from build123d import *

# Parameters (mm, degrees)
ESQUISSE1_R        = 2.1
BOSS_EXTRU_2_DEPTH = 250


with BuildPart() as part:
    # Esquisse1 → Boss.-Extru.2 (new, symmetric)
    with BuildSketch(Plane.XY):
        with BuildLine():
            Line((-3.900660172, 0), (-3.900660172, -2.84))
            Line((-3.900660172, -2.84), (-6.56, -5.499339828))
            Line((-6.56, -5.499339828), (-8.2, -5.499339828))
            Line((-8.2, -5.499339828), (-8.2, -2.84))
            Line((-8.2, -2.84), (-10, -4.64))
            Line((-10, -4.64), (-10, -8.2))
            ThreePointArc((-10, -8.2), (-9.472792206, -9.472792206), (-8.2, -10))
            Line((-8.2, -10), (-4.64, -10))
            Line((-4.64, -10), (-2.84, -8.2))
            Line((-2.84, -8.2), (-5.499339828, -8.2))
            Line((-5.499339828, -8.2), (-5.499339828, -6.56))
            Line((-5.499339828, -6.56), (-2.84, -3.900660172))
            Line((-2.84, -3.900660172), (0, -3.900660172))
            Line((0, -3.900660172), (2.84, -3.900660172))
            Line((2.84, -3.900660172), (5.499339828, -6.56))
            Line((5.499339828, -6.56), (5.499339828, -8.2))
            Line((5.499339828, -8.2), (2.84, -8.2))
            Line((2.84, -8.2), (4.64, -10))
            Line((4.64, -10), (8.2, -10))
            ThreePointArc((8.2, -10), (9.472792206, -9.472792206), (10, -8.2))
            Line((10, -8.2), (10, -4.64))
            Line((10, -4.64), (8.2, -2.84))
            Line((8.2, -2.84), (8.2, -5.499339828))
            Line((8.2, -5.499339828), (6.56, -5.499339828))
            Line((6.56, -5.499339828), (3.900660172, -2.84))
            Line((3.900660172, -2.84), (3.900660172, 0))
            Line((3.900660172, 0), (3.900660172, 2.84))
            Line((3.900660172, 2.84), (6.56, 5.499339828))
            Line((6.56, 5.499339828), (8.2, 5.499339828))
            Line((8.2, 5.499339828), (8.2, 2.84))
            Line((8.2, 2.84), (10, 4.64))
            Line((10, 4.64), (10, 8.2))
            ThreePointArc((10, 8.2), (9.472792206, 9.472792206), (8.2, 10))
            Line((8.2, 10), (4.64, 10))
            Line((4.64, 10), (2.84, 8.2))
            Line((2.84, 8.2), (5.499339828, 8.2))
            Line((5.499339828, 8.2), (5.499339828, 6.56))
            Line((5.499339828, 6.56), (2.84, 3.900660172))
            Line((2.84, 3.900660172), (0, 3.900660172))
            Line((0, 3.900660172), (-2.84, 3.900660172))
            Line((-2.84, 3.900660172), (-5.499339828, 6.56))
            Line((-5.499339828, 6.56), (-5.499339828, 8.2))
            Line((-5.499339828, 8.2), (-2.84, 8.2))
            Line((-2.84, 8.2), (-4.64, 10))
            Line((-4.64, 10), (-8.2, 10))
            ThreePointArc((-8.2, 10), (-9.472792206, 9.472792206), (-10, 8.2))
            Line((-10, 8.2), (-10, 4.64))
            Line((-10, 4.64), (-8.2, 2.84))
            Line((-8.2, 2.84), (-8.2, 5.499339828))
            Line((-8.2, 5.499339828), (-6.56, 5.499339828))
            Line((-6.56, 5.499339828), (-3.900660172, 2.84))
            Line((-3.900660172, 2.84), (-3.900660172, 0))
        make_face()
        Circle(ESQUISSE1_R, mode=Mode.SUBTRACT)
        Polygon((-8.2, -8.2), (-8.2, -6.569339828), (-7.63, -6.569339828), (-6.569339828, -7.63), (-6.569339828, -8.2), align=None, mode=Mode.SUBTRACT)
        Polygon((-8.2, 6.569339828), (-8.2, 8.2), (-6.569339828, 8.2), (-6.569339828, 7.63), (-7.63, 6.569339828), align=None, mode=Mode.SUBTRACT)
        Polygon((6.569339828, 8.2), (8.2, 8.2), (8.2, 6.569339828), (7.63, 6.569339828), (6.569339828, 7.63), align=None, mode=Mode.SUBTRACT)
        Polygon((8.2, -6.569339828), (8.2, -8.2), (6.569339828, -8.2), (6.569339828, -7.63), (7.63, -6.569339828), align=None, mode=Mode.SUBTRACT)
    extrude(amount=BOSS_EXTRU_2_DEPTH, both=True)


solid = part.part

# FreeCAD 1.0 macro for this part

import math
import FreeCAD as App
import Part
import Sketcher

V = App.Vector
Q = App.Units.Quantity


def add_polygon(sketch, points):
    """Adds a closed chain of lines whose ends are joined by coincident constraints."""
    first, n = sketch.GeometryCount, len(points)
    for a, b in zip(points, points[1:] + points[:1]):
        sketch.addGeometry(Part.LineSegment(App.Vector(*a, 0), App.Vector(*b, 0)), False)
    for i in range(n):
        sketch.addConstraint(Sketcher.Constraint("Coincident", first + i, 2, first + (i + 1) % n, 1))

doc = App.newDocument("Part")
body = doc.addObject("PartDesign::Body", "Body")

sketch1 = body.newObject("Sketcher::SketchObject", "Sketch")
sketch1.AttachmentSupport = (doc.getObject("XY_Plane"), [""])
sketch1.MapMode = "FlatFace"
sketch1.addGeometry(Part.LineSegment(V(-3.90066, -2.84, 0), V(-6.56, -5.49934, 0)), False)
sketch1.addGeometry(Part.LineSegment(V(-6.56, -5.49934, 0), V(-8.2, -5.49934, 0)), False)
sketch1.addGeometry(Part.LineSegment(V(-8.2, -5.49934, 0), V(-8.2, -2.84, 0)), False)
sketch1.addGeometry(Part.LineSegment(V(-8.2, -2.84, 0), V(-10, -4.64, 0)), False)
sketch1.addGeometry(Part.LineSegment(V(-10, -4.64, 0), V(-10, -8.2, 0)), False)
sketch1.addGeometry(Part.ArcOfCircle(Part.Circle(V(-8.2, -8.2, 0), V(0, 0, 1), 1.8), math.radians(180), math.radians(270)), False)
sketch1.addGeometry(Part.LineSegment(V(-8.2, -10, 0), V(-4.64, -10, 0)), False)
sketch1.addGeometry(Part.LineSegment(V(-4.64, -10, 0), V(-2.84, -8.2, 0)), False)
sketch1.addGeometry(Part.LineSegment(V(-2.84, -8.2, 0), V(-5.49934, -8.2, 0)), False)
sketch1.addGeometry(Part.LineSegment(V(-5.49934, -8.2, 0), V(-5.49934, -6.56, 0)), False)
sketch1.addGeometry(Part.LineSegment(V(-5.49934, -6.56, 0), V(-2.84, -3.90066, 0)), False)
sketch1.addGeometry(Part.LineSegment(V(-2.84, -3.90066, 0), V(2.84, -3.90066, 0)), False)
sketch1.addGeometry(Part.LineSegment(V(2.84, -3.90066, 0), V(5.49934, -6.56, 0)), False)
sketch1.addGeometry(Part.LineSegment(V(5.49934, -6.56, 0), V(5.49934, -8.2, 0)), False)
sketch1.addGeometry(Part.LineSegment(V(5.49934, -8.2, 0), V(2.84, -8.2, 0)), False)
sketch1.addGeometry(Part.LineSegment(V(2.84, -8.2, 0), V(4.64, -10, 0)), False)
sketch1.addGeometry(Part.LineSegment(V(4.64, -10, 0), V(8.2, -10, 0)), False)
sketch1.addGeometry(Part.ArcOfCircle(Part.Circle(V(8.2, -8.2, 0), V(0, 0, 1), 1.8), math.radians(-90), math.radians(0)), False)
sketch1.addGeometry(Part.LineSegment(V(10, -8.2, 0), V(10, -4.64, 0)), False)
sketch1.addGeometry(Part.LineSegment(V(10, -4.64, 0), V(8.2, -2.84, 0)), False)
sketch1.addGeometry(Part.LineSegment(V(8.2, -2.84, 0), V(8.2, -5.49934, 0)), False)
sketch1.addGeometry(Part.LineSegment(V(8.2, -5.49934, 0), V(6.56, -5.49934, 0)), False)
sketch1.addGeometry(Part.LineSegment(V(6.56, -5.49934, 0), V(3.90066, -2.84, 0)), False)
sketch1.addGeometry(Part.LineSegment(V(3.90066, -2.84, 0), V(3.90066, 2.84, 0)), False)
sketch1.addGeometry(Part.LineSegment(V(3.90066, 2.84, 0), V(6.56, 5.49934, 0)), False)
sketch1.addGeometry(Part.LineSegment(V(6.56, 5.49934, 0), V(8.2, 5.49934, 0)), False)
sketch1.addGeometry(Part.LineSegment(V(8.2, 5.49934, 0), V(8.2, 2.84, 0)), False)
sketch1.addGeometry(Part.LineSegment(V(8.2, 2.84, 0), V(10, 4.64, 0)), False)
sketch1.addGeometry(Part.LineSegment(V(10, 4.64, 0), V(10, 8.2, 0)), False)
sketch1.addGeometry(Part.ArcOfCircle(Part.Circle(V(8.2, 8.2, 0), V(0, 0, 1), 1.8), math.radians(0), math.radians(90)), False)
sketch1.addGeometry(Part.LineSegment(V(8.2, 10, 0), V(4.64, 10, 0)), False)
sketch1.addGeometry(Part.LineSegment(V(4.64, 10, 0), V(2.84, 8.2, 0)), False)
sketch1.addGeometry(Part.LineSegment(V(2.84, 8.2, 0), V(5.49934, 8.2, 0)), False)
sketch1.addGeometry(Part.LineSegment(V(5.49934, 8.2, 0), V(5.49934, 6.56, 0)), False)
sketch1.addGeometry(Part.LineSegment(V(5.49934, 6.56, 0), V(2.84, 3.90066, 0)), False)
sketch1.addGeometry(Part.LineSegment(V(2.84, 3.90066, 0), V(-2.84, 3.90066, 0)), False)
sketch1.addGeometry(Part.LineSegment(V(-2.84, 3.90066, 0), V(-5.49934, 6.56, 0)), False)
sketch1.addGeometry(Part.LineSegment(V(-5.49934, 6.56, 0), V(-5.49934, 8.2, 0)), False)
sketch1.addGeometry(Part.LineSegment(V(-5.49934, 8.2, 0), V(-2.84, 8.2, 0)), False)
sketch1.addGeometry(Part.LineSegment(V(-2.84, 8.2, 0), V(-4.64, 10, 0)), False)
sketch1.addGeometry(Part.LineSegment(V(-4.64, 10, 0), V(-8.2, 10, 0)), False)
sketch1.addGeometry(Part.ArcOfCircle(Part.Circle(V(-8.2, 8.2, 0), V(0, 0, 1), 1.8), math.radians(90), math.radians(180)), False)
sketch1.addGeometry(Part.LineSegment(V(-10, 8.2, 0), V(-10, 4.64, 0)), False)
sketch1.addGeometry(Part.LineSegment(V(-10, 4.64, 0), V(-8.2, 2.84, 0)), False)
sketch1.addGeometry(Part.LineSegment(V(-8.2, 2.84, 0), V(-8.2, 5.49934, 0)), False)
sketch1.addGeometry(Part.LineSegment(V(-8.2, 5.49934, 0), V(-6.56, 5.49934, 0)), False)
sketch1.addGeometry(Part.LineSegment(V(-6.56, 5.49934, 0), V(-3.90066, 2.84, 0)), False)
sketch1.addGeometry(Part.LineSegment(V(-3.90066, 2.84, 0), V(-3.90066, -2.84, 0)), False)
add_polygon(sketch1, [(-6.56934, -8.2), (-8.2, -8.2), (-8.2, -6.56934), (-7.63, -6.56934), (-6.56934, -7.63)])
add_polygon(sketch1, [(7.63, -6.56934), (8.2, -6.56934), (8.2, -8.2), (6.56934, -8.2), (6.56934, -7.63)])
add_polygon(sketch1, [(-7.63, 6.56934), (-8.2, 6.56934), (-8.2, 8.2), (-6.56934, 8.2), (-6.56934, 7.63)])
sketch1.addGeometry(Part.Circle(V(0, 0, 0), V(0, 0, 1), 2.1), False)
add_polygon(sketch1, [(6.56934, 7.63), (6.56934, 8.2), (8.2, 8.2), (8.2, 6.56934), (7.63, 6.56934)])
sketch1.addConstraint(Sketcher.Constraint("Coincident", 0, 2, 1, 1))
sketch1.addConstraint(Sketcher.Constraint("Coincident", 1, 2, 2, 1))
sketch1.addConstraint(Sketcher.Constraint("Coincident", 2, 2, 3, 1))
sketch1.addConstraint(Sketcher.Constraint("Coincident", 3, 2, 4, 1))
sketch1.addConstraint(Sketcher.Constraint("Tangent", 4, 2, 5, 1))
sketch1.addConstraint(Sketcher.Constraint("Tangent", 5, 2, 6, 1))
sketch1.addConstraint(Sketcher.Constraint("Coincident", 6, 2, 7, 1))
sketch1.addConstraint(Sketcher.Constraint("Coincident", 7, 2, 8, 1))
sketch1.addConstraint(Sketcher.Constraint("Coincident", 8, 2, 9, 1))
sketch1.addConstraint(Sketcher.Constraint("Coincident", 9, 2, 10, 1))
sketch1.addConstraint(Sketcher.Constraint("Coincident", 10, 2, 11, 1))
sketch1.addConstraint(Sketcher.Constraint("Coincident", 11, 2, 12, 1))
sketch1.addConstraint(Sketcher.Constraint("Coincident", 12, 2, 13, 1))
sketch1.addConstraint(Sketcher.Constraint("Coincident", 13, 2, 14, 1))
sketch1.addConstraint(Sketcher.Constraint("Coincident", 14, 2, 15, 1))
sketch1.addConstraint(Sketcher.Constraint("Coincident", 15, 2, 16, 1))
sketch1.addConstraint(Sketcher.Constraint("Tangent", 16, 2, 17, 1))
sketch1.addConstraint(Sketcher.Constraint("Tangent", 17, 2, 18, 1))
sketch1.addConstraint(Sketcher.Constraint("Coincident", 18, 2, 19, 1))
sketch1.addConstraint(Sketcher.Constraint("Coincident", 19, 2, 20, 1))
sketch1.addConstraint(Sketcher.Constraint("Coincident", 20, 2, 21, 1))
sketch1.addConstraint(Sketcher.Constraint("Coincident", 21, 2, 22, 1))
sketch1.addConstraint(Sketcher.Constraint("Coincident", 22, 2, 23, 1))
sketch1.addConstraint(Sketcher.Constraint("Coincident", 23, 2, 24, 1))
sketch1.addConstraint(Sketcher.Constraint("Coincident", 24, 2, 25, 1))
sketch1.addConstraint(Sketcher.Constraint("Coincident", 25, 2, 26, 1))
sketch1.addConstraint(Sketcher.Constraint("Coincident", 26, 2, 27, 1))
sketch1.addConstraint(Sketcher.Constraint("Coincident", 27, 2, 28, 1))
sketch1.addConstraint(Sketcher.Constraint("Tangent", 28, 2, 29, 1))
sketch1.addConstraint(Sketcher.Constraint("Tangent", 29, 2, 30, 1))
sketch1.addConstraint(Sketcher.Constraint("Coincident", 30, 2, 31, 1))
sketch1.addConstraint(Sketcher.Constraint("Coincident", 31, 2, 32, 1))
sketch1.addConstraint(Sketcher.Constraint("Coincident", 32, 2, 33, 1))
sketch1.addConstraint(Sketcher.Constraint("Coincident", 33, 2, 34, 1))
sketch1.addConstraint(Sketcher.Constraint("Coincident", 34, 2, 35, 1))
sketch1.addConstraint(Sketcher.Constraint("Coincident", 35, 2, 36, 1))
sketch1.addConstraint(Sketcher.Constraint("Coincident", 36, 2, 37, 1))
sketch1.addConstraint(Sketcher.Constraint("Coincident", 37, 2, 38, 1))
sketch1.addConstraint(Sketcher.Constraint("Coincident", 38, 2, 39, 1))
sketch1.addConstraint(Sketcher.Constraint("Coincident", 39, 2, 40, 1))
sketch1.addConstraint(Sketcher.Constraint("Tangent", 40, 2, 41, 1))
sketch1.addConstraint(Sketcher.Constraint("Tangent", 41, 2, 42, 1))
sketch1.addConstraint(Sketcher.Constraint("Coincident", 42, 2, 43, 1))
sketch1.addConstraint(Sketcher.Constraint("Coincident", 43, 2, 44, 1))
sketch1.addConstraint(Sketcher.Constraint("Coincident", 44, 2, 45, 1))
sketch1.addConstraint(Sketcher.Constraint("Coincident", 45, 2, 46, 1))
sketch1.addConstraint(Sketcher.Constraint("Coincident", 46, 2, 47, 1))
sketch1.addConstraint(Sketcher.Constraint("Coincident", 47, 2, 0, 1))
sketch1.addConstraint(Sketcher.Constraint("Horizontal", 1))
sketch1.addConstraint(Sketcher.Constraint("Vertical", 2))
sketch1.addConstraint(Sketcher.Constraint("Vertical", 4))
sketch1.addConstraint(Sketcher.Constraint("Horizontal", 6))
sketch1.addConstraint(Sketcher.Constraint("Horizontal", 8))
sketch1.addConstraint(Sketcher.Constraint("Vertical", 9))
sketch1.addConstraint(Sketcher.Constraint("Horizontal", 11))
sketch1.addConstraint(Sketcher.Constraint("Vertical", 13))
sketch1.addConstraint(Sketcher.Constraint("Horizontal", 14))
sketch1.addConstraint(Sketcher.Constraint("Horizontal", 16))
sketch1.addConstraint(Sketcher.Constraint("Vertical", 18))
sketch1.addConstraint(Sketcher.Constraint("Vertical", 20))
sketch1.addConstraint(Sketcher.Constraint("Horizontal", 21))
sketch1.addConstraint(Sketcher.Constraint("Vertical", 23))
sketch1.addConstraint(Sketcher.Constraint("Horizontal", 25))
sketch1.addConstraint(Sketcher.Constraint("Vertical", 26))
sketch1.addConstraint(Sketcher.Constraint("Vertical", 28))
sketch1.addConstraint(Sketcher.Constraint("Horizontal", 30))
sketch1.addConstraint(Sketcher.Constraint("Horizontal", 32))
sketch1.addConstraint(Sketcher.Constraint("Vertical", 33))
sketch1.addConstraint(Sketcher.Constraint("Horizontal", 35))
sketch1.addConstraint(Sketcher.Constraint("Vertical", 37))
sketch1.addConstraint(Sketcher.Constraint("Horizontal", 38))
sketch1.addConstraint(Sketcher.Constraint("Horizontal", 40))
sketch1.addConstraint(Sketcher.Constraint("Vertical", 42))
sketch1.addConstraint(Sketcher.Constraint("Vertical", 44))
sketch1.addConstraint(Sketcher.Constraint("Horizontal", 45))
sketch1.addConstraint(Sketcher.Constraint("Vertical", 47))
sketch1.addConstraint(Sketcher.Constraint("Horizontal", 48))
sketch1.addConstraint(Sketcher.Constraint("Vertical", 49))
sketch1.addConstraint(Sketcher.Constraint("Horizontal", 50))
sketch1.addConstraint(Sketcher.Constraint("Vertical", 52))
sketch1.addConstraint(Sketcher.Constraint("Horizontal", 53))
sketch1.addConstraint(Sketcher.Constraint("Vertical", 54))
sketch1.addConstraint(Sketcher.Constraint("Horizontal", 55))
sketch1.addConstraint(Sketcher.Constraint("Vertical", 56))
sketch1.addConstraint(Sketcher.Constraint("Horizontal", 58))
sketch1.addConstraint(Sketcher.Constraint("Vertical", 59))
sketch1.addConstraint(Sketcher.Constraint("Horizontal", 60))
sketch1.addConstraint(Sketcher.Constraint("Vertical", 61))
sketch1.addConstraint(Sketcher.Constraint("Vertical", 64))
sketch1.addConstraint(Sketcher.Constraint("Horizontal", 65))
sketch1.addConstraint(Sketcher.Constraint("Vertical", 66))
sketch1.addConstraint(Sketcher.Constraint("Horizontal", 67))
sketch1.addConstraint(Sketcher.Constraint("Coincident", 63, 3, -1, 1))
sketch1.addConstraint(Sketcher.Constraint("Coincident", 48, 2, 5, 3))
sketch1.addConstraint(Sketcher.Constraint("Coincident", 54, 2, 17, 3))
sketch1.addConstraint(Sketcher.Constraint("Coincident", 59, 2, 41, 3))
sketch1.addConstraint(Sketcher.Constraint("Coincident", 65, 2, 29, 3))
sketch1.addConstraint(Sketcher.Constraint("Equal", 5, 17))
sketch1.addConstraint(Sketcher.Constraint("Equal", 17, 29))
sketch1.addConstraint(Sketcher.Constraint("Equal", 29, 41))
sketch1.addConstraint(Sketcher.Constraint("Symmetric", 5, 3, 29, 3, -1, 1))
sketch1.addConstraint(Sketcher.Constraint("Symmetric", 17, 3, 41, 3, -1, 1))
sketch1.addConstraint(Sketcher.Constraint("Symmetric", 0, 2, 24, 2, -1, 1))
sketch1.addConstraint(Sketcher.Constraint("Symmetric", 2, 2, 26, 2, -1, 1))
sketch1.addConstraint(Sketcher.Constraint("Symmetric", 7, 2, 31, 2, -1, 1))
sketch1.addConstraint(Sketcher.Constraint("Symmetric", 9, 2, 33, 2, -1, 1))
sketch1.addConstraint(Sketcher.Constraint("Symmetric", 10, 2, 34, 2, -1, 1))
sketch1.addConstraint(Sketcher.Constraint("Symmetric", 12, 2, 36, 2, -1, 1))
sketch1.addConstraint(Sketcher.Constraint("Symmetric", 14, 2, 38, 2, -1, 1))
sketch1.addConstraint(Sketcher.Constraint("Symmetric", 19, 2, 43, 2, -1, 1))
sketch1.addConstraint(Sketcher.Constraint("Symmetric", 21, 2, 45, 2, -1, 1))
sketch1.addConstraint(Sketcher.Constraint("Symmetric", 22, 2, 46, 2, -1, 1))
sketch1.addConstraint(Sketcher.Constraint("Symmetric", 56, 2, 61, 2, -1, 1))
sketch1.addConstraint(Sketcher.Constraint("Symmetric", 57, 2, 62, 2, -1, 1))
sketch1.addConstraint(Sketcher.Constraint("Symmetric", 50, 2, 67, 2, -1, 1))
sketch1.addConstraint(Sketcher.Constraint("Symmetric", 51, 2, 68, 2, -1, 1))
sketch1.addConstraint(Sketcher.Constraint("Symmetric", 5, 3, 17, 3, -2))
sketch1.addConstraint(Sketcher.Constraint("Symmetric", 9, 2, 12, 2, -2))
sketch1.addConstraint(Sketcher.Constraint("Symmetric", 7, 2, 14, 2, -2))
sketch1.addConstraint(Sketcher.Constraint("Symmetric", 2, 2, 19, 2, -2))
sketch1.addConstraint(Sketcher.Constraint("Symmetric", 0, 2, 21, 2, -2))
sketch1.addConstraint(Sketcher.Constraint("Symmetric", 51, 2, 56, 2, -2))
sketch1.addConstraint(Sketcher.Constraint("Symmetric", 50, 2, 57, 2, -2))
sketch1.addConstraint(Sketcher.Constraint("Parallel", 0, 3))
sketch1.addConstraint(Sketcher.Constraint("Parallel", 3, 7))
sketch1.addConstraint(Sketcher.Constraint("Parallel", 7, 10))
sketch1.addConstraint(Sketcher.Constraint("Perpendicular", 10, 12))
sketch1.addConstraint(Sketcher.Constraint("Parallel", 12, 15))
sketch1.addConstraint(Sketcher.Constraint("Parallel", 15, 19))
sketch1.addConstraint(Sketcher.Constraint("Parallel", 19, 22))
sketch1.addConstraint(Sketcher.Constraint("Perpendicular", 22, 24))
sketch1.addConstraint(Sketcher.Constraint("Parallel", 24, 27))
sketch1.addConstraint(Sketcher.Constraint("Parallel", 27, 31))
sketch1.addConstraint(Sketcher.Constraint("Perpendicular", 34, 36))
sketch1.addConstraint(Sketcher.Constraint("Parallel", 36, 39))
sketch1.addConstraint(Sketcher.Constraint("Parallel", 39, 43))
sketch1.addConstraint(Sketcher.Constraint("Parallel", 46, 51))
sketch1.addConstraint(Sketcher.Constraint("Perpendicular", 51, 57))
sketch1.addConstraint(Sketcher.Constraint("Horizontal", 4, 2, 7, 2))
sketch1.addConstraint(Sketcher.Constraint("Horizontal", 19, 2, 22, 2))
sketch1.addConstraint(Sketcher.Constraint("Vertical", 41, 3, 1, 2))
sketch1.addConstraint(Sketcher.Constraint("Vertical", 7, 2, 10, 2))
sketch1.addConstraint(Sketcher.Constraint("Equal", 38, 2))
sketch1.addConstraint(Sketcher.Constraint("Equal", 40, 4))
sketch1.addConstraint(Sketcher.Constraint("Equal", 45, 9))
sketch1.addConstraint(Sketcher.Constraint("Equal", 35, 23))
sketch1.addConstraint(Sketcher.Constraint("Equal", 65, 49))
sketch1.addConstraint(Sketcher.Constraint("Diameter", 63, Q("4.2 mm")))
sketch1.addConstraint(Sketcher.Constraint("Radius", 5, Q("1.8 mm")))
sketch1.addConstraint(Sketcher.Constraint("DistanceX", 3, 2, -1, 1, Q("10 mm")))
sketch1.addConstraint(Sketcher.Constraint("Distance", 51, Q("1.5 mm")))
sketch1.addConstraint(Sketcher.Constraint("DistanceX", 1, 2, 1, 1, Q("1.64 mm")))
sketch1.addConstraint(Sketcher.Constraint("DistanceX", 6, 1, 6, 2, Q("3.56 mm")))
sketch1.addConstraint(Sketcher.Constraint("DistanceX", 50, 1, 50, 2, Q("0.57 mm")))
sketch1.addConstraint(Sketcher.Constraint("DistanceX", 8, 2, 8, 1, Q("2.65934 mm")))
pad1 = body.newObject("PartDesign::Pad", "Pad")
pad1.Profile = sketch1
pad1.Length = 500
pad1.Midplane = True

doc.recompute()
